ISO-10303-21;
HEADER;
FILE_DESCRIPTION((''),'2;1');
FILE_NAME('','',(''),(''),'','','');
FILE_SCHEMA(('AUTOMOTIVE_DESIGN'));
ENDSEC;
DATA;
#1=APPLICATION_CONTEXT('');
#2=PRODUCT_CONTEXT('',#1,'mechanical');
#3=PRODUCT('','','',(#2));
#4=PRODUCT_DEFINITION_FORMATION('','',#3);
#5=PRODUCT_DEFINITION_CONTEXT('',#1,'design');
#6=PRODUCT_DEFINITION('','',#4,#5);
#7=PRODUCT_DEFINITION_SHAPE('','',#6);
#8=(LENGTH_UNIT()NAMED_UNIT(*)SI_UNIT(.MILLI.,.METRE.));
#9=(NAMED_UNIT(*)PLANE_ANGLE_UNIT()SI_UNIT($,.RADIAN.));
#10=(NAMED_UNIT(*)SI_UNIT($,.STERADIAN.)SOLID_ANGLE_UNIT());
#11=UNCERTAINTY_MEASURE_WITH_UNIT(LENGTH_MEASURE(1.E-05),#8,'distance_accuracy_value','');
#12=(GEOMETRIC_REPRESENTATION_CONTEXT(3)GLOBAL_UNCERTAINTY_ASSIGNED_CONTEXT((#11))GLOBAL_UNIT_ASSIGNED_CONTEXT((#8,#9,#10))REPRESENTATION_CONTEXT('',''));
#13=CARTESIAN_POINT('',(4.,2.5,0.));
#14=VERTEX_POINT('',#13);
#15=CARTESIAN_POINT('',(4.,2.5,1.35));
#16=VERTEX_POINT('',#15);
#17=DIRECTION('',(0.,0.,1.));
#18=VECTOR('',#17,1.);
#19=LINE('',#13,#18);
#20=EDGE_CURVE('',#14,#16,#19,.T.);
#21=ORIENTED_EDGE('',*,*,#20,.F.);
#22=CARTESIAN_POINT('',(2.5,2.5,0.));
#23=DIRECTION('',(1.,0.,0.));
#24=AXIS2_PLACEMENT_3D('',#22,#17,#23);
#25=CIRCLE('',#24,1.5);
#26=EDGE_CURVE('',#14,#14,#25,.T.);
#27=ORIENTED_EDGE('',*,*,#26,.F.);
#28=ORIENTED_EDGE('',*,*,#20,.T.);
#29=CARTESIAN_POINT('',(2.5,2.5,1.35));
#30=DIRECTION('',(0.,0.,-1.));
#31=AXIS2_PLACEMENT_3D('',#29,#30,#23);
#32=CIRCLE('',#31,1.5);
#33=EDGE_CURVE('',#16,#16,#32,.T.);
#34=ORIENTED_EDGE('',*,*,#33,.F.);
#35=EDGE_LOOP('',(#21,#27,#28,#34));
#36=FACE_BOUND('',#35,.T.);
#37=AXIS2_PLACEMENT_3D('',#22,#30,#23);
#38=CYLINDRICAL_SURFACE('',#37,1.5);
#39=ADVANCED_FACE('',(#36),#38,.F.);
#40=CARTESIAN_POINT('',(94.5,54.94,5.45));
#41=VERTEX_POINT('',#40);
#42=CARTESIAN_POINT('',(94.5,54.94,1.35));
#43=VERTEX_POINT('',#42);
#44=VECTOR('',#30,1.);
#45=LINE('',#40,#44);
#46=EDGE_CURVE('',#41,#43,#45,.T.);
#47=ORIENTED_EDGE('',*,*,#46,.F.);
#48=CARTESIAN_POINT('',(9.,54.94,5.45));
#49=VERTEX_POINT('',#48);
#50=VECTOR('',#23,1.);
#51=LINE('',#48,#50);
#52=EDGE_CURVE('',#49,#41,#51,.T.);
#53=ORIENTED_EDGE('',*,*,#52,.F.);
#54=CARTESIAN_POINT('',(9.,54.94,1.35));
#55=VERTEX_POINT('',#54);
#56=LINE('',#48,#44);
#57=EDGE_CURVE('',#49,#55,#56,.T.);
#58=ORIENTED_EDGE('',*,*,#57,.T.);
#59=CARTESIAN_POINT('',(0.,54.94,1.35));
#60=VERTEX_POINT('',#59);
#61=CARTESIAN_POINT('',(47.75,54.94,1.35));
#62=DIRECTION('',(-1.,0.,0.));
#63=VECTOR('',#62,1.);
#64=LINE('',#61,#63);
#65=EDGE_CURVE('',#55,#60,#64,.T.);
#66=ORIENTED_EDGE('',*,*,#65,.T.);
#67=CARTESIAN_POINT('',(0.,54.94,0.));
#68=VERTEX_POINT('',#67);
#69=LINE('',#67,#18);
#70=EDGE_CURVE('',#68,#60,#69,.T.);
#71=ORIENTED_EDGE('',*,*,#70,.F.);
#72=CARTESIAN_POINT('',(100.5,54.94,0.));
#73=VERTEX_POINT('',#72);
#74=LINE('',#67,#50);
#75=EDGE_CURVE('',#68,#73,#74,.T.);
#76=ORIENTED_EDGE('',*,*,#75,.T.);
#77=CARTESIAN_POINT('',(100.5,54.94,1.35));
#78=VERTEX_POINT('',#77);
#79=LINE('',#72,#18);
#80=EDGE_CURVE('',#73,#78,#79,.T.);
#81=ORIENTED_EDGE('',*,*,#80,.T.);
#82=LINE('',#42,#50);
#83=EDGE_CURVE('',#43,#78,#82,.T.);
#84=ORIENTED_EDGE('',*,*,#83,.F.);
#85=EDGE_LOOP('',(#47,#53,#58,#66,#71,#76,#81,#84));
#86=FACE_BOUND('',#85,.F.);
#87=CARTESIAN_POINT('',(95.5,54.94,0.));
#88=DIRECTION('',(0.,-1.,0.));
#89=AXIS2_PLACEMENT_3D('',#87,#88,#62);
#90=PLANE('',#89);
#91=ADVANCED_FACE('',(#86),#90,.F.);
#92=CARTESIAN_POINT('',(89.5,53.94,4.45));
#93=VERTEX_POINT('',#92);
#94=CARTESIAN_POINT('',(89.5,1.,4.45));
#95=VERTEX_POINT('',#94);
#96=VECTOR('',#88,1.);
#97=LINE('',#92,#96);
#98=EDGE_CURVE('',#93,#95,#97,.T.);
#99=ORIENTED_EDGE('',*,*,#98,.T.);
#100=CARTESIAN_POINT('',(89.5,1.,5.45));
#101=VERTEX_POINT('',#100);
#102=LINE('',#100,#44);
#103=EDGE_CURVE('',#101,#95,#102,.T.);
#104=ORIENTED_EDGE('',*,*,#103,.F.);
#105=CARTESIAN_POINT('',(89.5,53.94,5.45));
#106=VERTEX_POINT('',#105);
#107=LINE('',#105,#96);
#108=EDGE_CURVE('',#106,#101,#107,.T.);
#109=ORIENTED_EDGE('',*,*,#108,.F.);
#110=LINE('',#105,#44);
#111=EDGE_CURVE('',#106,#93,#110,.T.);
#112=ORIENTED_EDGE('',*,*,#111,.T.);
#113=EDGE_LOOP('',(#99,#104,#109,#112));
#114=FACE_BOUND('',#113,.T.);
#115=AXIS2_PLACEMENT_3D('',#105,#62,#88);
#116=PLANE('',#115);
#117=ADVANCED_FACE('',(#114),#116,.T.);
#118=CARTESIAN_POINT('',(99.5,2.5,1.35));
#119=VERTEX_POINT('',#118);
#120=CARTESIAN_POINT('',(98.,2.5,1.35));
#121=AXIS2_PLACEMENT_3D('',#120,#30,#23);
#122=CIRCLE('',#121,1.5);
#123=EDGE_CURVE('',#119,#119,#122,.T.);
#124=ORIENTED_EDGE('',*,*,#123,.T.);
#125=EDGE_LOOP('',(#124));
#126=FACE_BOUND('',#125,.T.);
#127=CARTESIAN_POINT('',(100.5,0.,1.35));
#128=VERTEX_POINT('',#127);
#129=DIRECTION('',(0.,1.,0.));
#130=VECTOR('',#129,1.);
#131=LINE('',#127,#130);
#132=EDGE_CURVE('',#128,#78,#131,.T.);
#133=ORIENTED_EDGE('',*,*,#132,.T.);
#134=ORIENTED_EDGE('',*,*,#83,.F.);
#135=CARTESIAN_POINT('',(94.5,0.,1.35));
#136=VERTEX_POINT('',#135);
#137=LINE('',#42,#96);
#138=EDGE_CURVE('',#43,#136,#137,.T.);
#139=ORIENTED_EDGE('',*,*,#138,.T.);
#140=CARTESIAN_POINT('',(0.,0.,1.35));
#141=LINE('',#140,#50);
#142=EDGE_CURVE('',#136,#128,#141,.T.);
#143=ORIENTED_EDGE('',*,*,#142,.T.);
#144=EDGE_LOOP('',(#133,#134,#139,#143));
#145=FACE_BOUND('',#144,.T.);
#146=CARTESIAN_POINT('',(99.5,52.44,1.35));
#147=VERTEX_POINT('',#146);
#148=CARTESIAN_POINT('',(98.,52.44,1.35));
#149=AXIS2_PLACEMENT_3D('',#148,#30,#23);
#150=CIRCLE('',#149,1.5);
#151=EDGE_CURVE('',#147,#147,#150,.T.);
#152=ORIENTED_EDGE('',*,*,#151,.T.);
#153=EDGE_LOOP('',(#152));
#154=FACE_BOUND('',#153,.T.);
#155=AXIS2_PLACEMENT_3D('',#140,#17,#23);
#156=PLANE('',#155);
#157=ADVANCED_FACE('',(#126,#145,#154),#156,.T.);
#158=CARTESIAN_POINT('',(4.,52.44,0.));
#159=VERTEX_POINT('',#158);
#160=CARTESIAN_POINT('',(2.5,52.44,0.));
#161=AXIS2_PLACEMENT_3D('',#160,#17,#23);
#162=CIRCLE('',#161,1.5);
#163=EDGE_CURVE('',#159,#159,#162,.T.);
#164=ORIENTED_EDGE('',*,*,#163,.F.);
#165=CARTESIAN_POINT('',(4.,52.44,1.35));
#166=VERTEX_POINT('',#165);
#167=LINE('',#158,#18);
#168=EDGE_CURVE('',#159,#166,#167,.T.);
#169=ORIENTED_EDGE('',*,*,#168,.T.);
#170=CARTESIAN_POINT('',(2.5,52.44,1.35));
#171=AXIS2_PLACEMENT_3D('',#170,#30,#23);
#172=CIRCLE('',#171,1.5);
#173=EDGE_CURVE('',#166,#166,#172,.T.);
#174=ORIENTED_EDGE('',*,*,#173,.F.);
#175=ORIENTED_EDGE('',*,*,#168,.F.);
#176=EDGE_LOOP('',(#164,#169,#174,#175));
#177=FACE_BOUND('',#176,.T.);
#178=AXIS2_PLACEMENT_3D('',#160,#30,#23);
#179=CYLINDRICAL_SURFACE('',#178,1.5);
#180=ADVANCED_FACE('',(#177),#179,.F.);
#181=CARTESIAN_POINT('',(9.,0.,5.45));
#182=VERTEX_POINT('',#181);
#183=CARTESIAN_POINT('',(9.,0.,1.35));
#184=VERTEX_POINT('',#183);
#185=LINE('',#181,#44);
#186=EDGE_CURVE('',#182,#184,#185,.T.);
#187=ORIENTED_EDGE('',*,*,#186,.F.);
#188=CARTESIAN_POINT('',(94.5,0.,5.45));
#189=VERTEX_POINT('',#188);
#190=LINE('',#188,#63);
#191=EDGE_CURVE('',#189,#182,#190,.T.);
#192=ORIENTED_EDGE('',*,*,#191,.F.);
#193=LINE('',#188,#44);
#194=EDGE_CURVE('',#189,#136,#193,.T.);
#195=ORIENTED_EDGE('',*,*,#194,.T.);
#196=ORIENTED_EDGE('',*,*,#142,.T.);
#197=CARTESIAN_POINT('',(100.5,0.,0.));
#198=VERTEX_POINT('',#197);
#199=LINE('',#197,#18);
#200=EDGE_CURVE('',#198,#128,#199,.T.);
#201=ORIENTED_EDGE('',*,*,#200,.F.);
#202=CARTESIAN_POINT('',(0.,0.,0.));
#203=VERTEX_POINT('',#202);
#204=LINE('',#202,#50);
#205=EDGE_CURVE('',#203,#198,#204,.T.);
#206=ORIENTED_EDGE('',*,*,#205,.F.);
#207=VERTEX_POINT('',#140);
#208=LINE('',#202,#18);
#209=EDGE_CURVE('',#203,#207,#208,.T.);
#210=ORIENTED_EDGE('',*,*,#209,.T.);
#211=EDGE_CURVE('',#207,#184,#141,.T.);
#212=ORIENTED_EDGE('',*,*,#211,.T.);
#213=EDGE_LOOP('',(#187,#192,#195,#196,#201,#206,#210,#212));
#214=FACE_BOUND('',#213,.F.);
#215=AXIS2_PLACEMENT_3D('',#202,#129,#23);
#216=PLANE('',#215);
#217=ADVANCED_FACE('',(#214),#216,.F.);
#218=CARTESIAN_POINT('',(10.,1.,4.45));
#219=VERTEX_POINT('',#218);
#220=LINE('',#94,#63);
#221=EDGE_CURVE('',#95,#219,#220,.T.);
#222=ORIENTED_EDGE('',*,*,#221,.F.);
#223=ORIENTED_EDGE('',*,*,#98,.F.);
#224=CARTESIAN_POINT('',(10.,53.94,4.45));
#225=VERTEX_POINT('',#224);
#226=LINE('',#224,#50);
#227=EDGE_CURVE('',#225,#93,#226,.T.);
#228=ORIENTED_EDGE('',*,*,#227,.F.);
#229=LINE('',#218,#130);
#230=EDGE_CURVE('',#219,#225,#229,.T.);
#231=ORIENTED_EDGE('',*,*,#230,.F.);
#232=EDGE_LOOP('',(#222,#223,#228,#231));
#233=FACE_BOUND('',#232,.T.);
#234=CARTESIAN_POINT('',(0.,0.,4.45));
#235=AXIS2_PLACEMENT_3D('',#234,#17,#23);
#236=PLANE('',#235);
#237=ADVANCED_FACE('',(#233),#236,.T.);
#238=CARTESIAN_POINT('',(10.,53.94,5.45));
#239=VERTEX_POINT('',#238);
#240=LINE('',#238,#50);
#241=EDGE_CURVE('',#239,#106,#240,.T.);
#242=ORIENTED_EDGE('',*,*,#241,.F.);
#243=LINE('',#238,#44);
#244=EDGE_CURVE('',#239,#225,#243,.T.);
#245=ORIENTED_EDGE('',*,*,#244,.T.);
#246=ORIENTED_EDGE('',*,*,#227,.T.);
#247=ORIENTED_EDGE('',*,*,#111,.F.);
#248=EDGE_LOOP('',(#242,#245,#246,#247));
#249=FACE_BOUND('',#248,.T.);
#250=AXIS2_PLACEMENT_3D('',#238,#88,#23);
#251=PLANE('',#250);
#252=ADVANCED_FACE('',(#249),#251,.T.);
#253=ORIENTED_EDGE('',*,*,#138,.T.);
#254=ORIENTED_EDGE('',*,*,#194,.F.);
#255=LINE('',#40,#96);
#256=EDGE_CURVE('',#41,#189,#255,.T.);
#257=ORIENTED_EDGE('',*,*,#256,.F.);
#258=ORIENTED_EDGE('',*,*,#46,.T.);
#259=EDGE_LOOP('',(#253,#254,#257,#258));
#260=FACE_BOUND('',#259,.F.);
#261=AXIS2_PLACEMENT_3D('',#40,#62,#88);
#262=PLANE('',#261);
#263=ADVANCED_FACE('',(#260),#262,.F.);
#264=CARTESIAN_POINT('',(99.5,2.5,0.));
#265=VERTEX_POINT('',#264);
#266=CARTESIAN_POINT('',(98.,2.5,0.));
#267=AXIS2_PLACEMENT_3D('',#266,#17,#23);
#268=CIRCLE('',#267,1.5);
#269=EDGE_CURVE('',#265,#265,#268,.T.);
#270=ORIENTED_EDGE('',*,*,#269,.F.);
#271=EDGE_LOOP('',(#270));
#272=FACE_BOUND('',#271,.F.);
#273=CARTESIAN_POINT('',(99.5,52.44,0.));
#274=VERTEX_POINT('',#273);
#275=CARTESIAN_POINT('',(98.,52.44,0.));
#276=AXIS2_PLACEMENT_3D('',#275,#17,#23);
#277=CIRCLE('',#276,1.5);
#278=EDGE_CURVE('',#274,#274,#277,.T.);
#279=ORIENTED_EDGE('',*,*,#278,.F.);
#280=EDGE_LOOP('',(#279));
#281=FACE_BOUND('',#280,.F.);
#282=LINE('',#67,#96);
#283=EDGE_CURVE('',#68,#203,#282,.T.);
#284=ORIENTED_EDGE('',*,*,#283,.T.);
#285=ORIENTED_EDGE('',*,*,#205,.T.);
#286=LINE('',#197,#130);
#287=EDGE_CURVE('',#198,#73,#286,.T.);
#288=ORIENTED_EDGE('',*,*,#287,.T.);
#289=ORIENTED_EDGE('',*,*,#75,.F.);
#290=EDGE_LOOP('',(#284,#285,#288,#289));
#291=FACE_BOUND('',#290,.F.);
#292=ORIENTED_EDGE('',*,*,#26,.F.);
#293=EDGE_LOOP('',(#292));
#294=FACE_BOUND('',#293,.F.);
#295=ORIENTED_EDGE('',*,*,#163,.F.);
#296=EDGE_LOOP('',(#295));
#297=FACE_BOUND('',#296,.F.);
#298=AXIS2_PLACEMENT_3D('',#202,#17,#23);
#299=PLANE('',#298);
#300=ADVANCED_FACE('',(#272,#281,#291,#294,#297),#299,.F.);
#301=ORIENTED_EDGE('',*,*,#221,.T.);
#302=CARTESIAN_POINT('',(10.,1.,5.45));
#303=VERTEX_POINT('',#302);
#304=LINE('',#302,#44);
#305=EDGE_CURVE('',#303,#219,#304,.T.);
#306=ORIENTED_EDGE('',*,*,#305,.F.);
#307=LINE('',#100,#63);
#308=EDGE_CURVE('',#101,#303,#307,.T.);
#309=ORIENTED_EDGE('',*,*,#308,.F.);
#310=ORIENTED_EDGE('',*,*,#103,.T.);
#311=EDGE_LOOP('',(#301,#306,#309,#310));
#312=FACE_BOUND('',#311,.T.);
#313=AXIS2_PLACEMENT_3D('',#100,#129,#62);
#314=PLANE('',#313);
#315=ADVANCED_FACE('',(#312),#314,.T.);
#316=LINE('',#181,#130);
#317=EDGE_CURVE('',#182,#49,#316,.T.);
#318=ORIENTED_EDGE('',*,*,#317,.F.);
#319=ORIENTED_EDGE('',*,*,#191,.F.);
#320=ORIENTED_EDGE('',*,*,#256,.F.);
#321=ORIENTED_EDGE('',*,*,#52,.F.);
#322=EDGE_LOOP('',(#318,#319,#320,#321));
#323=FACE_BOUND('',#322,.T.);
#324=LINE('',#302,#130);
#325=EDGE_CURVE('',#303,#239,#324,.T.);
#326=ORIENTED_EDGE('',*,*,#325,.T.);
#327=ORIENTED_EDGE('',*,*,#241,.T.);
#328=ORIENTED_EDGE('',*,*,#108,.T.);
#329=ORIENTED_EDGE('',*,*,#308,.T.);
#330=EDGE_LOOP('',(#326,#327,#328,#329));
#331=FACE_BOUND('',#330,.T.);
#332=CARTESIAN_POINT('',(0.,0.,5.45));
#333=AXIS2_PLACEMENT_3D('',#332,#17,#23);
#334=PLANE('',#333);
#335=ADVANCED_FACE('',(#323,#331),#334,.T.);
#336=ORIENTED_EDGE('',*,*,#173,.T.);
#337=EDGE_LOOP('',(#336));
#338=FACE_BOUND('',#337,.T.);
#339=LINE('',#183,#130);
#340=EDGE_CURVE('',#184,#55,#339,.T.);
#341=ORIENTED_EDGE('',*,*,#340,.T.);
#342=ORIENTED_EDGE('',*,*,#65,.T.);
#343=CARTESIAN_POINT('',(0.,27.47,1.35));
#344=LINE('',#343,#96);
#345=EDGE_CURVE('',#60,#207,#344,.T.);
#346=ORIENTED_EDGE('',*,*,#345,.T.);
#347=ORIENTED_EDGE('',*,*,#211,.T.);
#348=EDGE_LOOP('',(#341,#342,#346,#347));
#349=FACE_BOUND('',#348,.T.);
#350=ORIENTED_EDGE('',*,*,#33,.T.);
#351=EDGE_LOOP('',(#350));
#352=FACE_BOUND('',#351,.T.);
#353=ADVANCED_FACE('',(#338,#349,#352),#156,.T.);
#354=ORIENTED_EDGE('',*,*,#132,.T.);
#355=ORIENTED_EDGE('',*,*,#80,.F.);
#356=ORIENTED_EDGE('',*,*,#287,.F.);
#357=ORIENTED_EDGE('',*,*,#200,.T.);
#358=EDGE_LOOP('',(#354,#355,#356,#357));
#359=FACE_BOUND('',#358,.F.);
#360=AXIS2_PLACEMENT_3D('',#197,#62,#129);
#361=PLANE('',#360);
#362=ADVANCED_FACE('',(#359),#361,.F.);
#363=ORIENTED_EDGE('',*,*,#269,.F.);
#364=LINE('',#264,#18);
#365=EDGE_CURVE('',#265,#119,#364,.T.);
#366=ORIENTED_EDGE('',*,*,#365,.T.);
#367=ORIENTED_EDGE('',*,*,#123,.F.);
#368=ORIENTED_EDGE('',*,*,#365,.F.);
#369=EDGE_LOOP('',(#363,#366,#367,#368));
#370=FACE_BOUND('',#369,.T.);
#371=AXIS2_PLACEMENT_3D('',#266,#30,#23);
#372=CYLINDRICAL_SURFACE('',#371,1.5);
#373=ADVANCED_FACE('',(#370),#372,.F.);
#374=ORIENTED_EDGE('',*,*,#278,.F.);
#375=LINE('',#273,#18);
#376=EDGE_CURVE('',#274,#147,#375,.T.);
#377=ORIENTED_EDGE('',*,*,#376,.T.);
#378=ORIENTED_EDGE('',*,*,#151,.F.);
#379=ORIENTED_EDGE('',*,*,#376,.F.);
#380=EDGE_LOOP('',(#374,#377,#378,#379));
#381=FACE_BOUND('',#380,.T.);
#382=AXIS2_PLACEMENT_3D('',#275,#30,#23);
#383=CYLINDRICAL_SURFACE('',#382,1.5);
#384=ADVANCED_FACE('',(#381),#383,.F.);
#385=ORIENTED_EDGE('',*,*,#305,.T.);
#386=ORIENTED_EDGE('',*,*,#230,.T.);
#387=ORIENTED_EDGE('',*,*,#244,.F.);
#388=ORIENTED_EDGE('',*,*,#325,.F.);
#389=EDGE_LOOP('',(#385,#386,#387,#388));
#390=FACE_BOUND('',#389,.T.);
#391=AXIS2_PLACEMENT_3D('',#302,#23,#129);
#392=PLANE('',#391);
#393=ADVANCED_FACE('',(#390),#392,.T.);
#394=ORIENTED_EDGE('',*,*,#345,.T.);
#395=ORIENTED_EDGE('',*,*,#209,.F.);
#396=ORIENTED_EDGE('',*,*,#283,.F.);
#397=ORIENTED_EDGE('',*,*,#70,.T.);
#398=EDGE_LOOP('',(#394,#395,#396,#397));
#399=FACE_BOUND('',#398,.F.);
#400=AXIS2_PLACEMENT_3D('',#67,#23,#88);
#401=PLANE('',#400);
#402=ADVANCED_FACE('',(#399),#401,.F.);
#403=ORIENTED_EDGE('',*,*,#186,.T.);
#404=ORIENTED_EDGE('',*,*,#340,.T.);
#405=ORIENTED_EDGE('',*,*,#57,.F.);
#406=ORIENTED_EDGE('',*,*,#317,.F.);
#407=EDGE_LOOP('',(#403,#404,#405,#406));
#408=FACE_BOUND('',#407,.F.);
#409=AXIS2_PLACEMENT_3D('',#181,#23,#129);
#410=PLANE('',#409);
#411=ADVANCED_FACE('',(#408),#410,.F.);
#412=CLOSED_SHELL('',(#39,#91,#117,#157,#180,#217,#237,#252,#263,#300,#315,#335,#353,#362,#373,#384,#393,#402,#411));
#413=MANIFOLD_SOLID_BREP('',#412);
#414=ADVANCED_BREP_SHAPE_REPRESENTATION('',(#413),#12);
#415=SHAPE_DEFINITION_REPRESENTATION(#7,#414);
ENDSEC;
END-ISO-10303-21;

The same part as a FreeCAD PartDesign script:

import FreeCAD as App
import Part
import Sketcher

V = App.Vector
Q = App.Units.Quantity

doc = App.newDocument("Part")
body = doc.addObject("PartDesign::Body", "Body")

# Sketch on XY plane
sketch1 = body.newObject("Sketcher::SketchObject", "Sketch")
sketch1.AttachmentSupport = (doc.getObject("XY_Plane"), [""])
sketch1.MapMode = "FlatFace"
sketch1.addGeometry([
    Part.LineSegment(V(0, 54.9, 0), V(0, 0, 0)),  # 0
    Part.LineSegment(V(0, 0, 0), V(100.5, 0, 0)),  # 1
    Part.LineSegment(V(100.5, 0, 0), V(100.5, 54.9, 0)),  # 2
    Part.LineSegment(V(100.5, 54.9, 0), V(0, 54.9, 0)),  # 3
    Part.Circle(V(2.5, 2.5, 0), V(0, 0, 1), 1.5),  # 4
    Part.Circle(V(98, 2.5, 0), V(0, 0, 1), 1.5),  # 5
    Part.Circle(V(2.5, 52.4, 0), V(0, 0, 1), 1.5),  # 6
    Part.Circle(V(98, 52.4, 0), V(0, 0, 1), 1.5),  # 7
], False)
sketch1.addConstraint([
    Sketcher.Constraint("Coincident", 0, 2, 1, 1),
    Sketcher.Constraint("Coincident", 1, 2, 2, 1),
    Sketcher.Constraint("Coincident", 2, 2, 3, 1),
    Sketcher.Constraint("Coincident", 3, 2, 0, 1),
    Sketcher.Constraint("Vertical", 0),
    Sketcher.Constraint("Horizontal", 1),
    Sketcher.Constraint("Vertical", 2),
    Sketcher.Constraint("Horizontal", 3),
    Sketcher.Constraint("Coincident", 0, 2, -1, 1),
    Sketcher.Constraint("Equal", 4, 5),
    Sketcher.Constraint("Equal", 5, 6),
    Sketcher.Constraint("Equal", 6, 7),
    Sketcher.Constraint("Horizontal", 4, 3, 5, 3),
    Sketcher.Constraint("Horizontal", 6, 3, 7, 3),
    Sketcher.Constraint("Vertical", 4, 3, 6, 3),
    Sketcher.Constraint("Vertical", 5, 3, 7, 3),
    Sketcher.Constraint("Diameter", 4, Q("3 mm")),
    Sketcher.Constraint("DistanceX", 1, 1, 1, 2, Q("100.5 mm")),
    Sketcher.Constraint("DistanceY", 0, 2, 0, 1, Q("54.94 mm")),
    Sketcher.Constraint("DistanceX", -1, 1, 4, 3, Q("2.5 mm")),
    Sketcher.Constraint("DistanceY", -1, 1, 4, 3, Q("2.5 mm")),
    Sketcher.Constraint("DistanceX", 4, 3, 5, 3, Q("95.5 mm")),
    Sketcher.Constraint("DistanceY", 7, 3, 2, 2, Q("2.5 mm")),
])
pad1 = body.newObject("PartDesign::Pad", "Pad")
pad1.Profile = sketch1
pad1.Length = 5.45

# Sketch on XY plane
sketch2 = body.newObject("Sketcher::SketchObject", "Sketch001")
sketch2.AttachmentSupport = (doc.getObject("XY_Plane"), [""])
sketch2.MapMode = "FlatFace"
sketch2.AttachmentOffset = App.Placement(V(0, 0, 5.45), App.Rotation())
sketch2.addGeometry([
    Part.LineSegment(V(119, 65, 0), V(-12, 65, 0)),  # 0
    Part.LineSegment(V(-12, 65, 0), V(-12, -14, 0)),  # 1
    Part.LineSegment(V(-12, -14, 0), V(119, -14, 0)),  # 2
    Part.LineSegment(V(119, -14, 0), V(119, 65, 0)),  # 3
    Part.LineSegment(V(9, 0, 0), V(9, 55, 0)),  # 4
    Part.LineSegment(V(9, 55, 0), V(94, 55, 0)),  # 5
    Part.LineSegment(V(94, 55, 0), V(94, 0, 0)),  # 6
    Part.LineSegment(V(94, 0, 0), V(9, 0, 0)),  # 7
], False)
sketch2.addConstraint([
    Sketcher.Constraint("Coincident", 0, 2, 1, 1),
    Sketcher.Constraint("Coincident", 1, 2, 2, 1),
    Sketcher.Constraint("Coincident", 2, 2, 3, 1),
    Sketcher.Constraint("Coincident", 3, 2, 0, 1),
    Sketcher.Constraint("Coincident", 4, 2, 5, 1),
    Sketcher.Constraint("Coincident", 5, 2, 6, 1),
    Sketcher.Constraint("Coincident", 6, 2, 7, 1),
    Sketcher.Constraint("Coincident", 7, 2, 4, 1),
    Sketcher.Constraint("Horizontal", 0),
    Sketcher.Constraint("Vertical", 1),
    Sketcher.Constraint("Horizontal", 2),
    Sketcher.Constraint("Vertical", 3),
    Sketcher.Constraint("Vertical", 4),
    Sketcher.Constraint("Horizontal", 5),
    Sketcher.Constraint("Vertical", 6),
    Sketcher.Constraint("Horizontal", 7),
    Sketcher.Constraint("PointOnObject", 6, 2, -1),
    Sketcher.Constraint("DistanceX", 5, 1, 5, 2, Q("85.5 mm")),
    Sketcher.Constraint("DistanceY", 4, 1, 4, 2, Q("54.94 mm")),
    Sketcher.Constraint("DistanceX", 0, 2, 0, 1, Q("131 mm")),
    Sketcher.Constraint("DistanceY", 1, 2, 1, 1, Q("79 mm")),
    Sketcher.Constraint("DistanceX", 0, 2, -1, 1, Q("12 mm")),
    Sketcher.Constraint("DistanceY", -1, 1, 0, 2, Q("65 mm")),
    Sketcher.Constraint("DistanceX", -1, 1, 4, 2, Q("9 mm")),
])
pocket1 = body.newObject("PartDesign::Pocket", "Pocket")
pocket1.Profile = sketch2
pocket1.Length = 4.1

# Sketch on XY plane
sketch3 = body.newObject("Sketcher::SketchObject", "Sketch002")
sketch3.AttachmentSupport = (doc.getObject("XY_Plane"), [""])
sketch3.MapMode = "FlatFace"
sketch3.AttachmentOffset = App.Placement(V(0, 0, 5.45), App.Rotation())
sketch3.addGeometry([
    Part.LineSegment(V(90, 54, 0), V(10, 54, 0)),
    Part.LineSegment(V(10, 54, 0), V(10, 1, 0)),
    Part.LineSegment(V(10, 1, 0), V(90, 1, 0)),
    Part.LineSegment(V(90, 1, 0), V(90, 54, 0)),
], False)
sketch3.addConstraint([
    Sketcher.Constraint("Coincident", 0, 2, 1, 1),
    Sketcher.Constraint("Coincident", 1, 2, 2, 1),
    Sketcher.Constraint("Coincident", 2, 2, 3, 1),
    Sketcher.Constraint("Coincident", 3, 2, 0, 1),
    Sketcher.Constraint("Horizontal", 0),
    Sketcher.Constraint("Vertical", 1),
    Sketcher.Constraint("Horizontal", 2),
    Sketcher.Constraint("Vertical", 3),
    Sketcher.Constraint("DistanceY", -1, 1, 1, 2, Q("1 mm")),
    Sketcher.Constraint("DistanceX", 0, 2, 0, 1, Q("79.5 mm")),
    Sketcher.Constraint("DistanceX", -1, 1, 0, 2, Q("10 mm")),
    Sketcher.Constraint("DistanceY", 1, 2, 1, 1, Q("52.94 mm")),
])
pocket2 = body.newObject("PartDesign::Pocket", "Pocket001")
pocket2.Profile = sketch3
pocket2.Length = 1

doc.recompute()
